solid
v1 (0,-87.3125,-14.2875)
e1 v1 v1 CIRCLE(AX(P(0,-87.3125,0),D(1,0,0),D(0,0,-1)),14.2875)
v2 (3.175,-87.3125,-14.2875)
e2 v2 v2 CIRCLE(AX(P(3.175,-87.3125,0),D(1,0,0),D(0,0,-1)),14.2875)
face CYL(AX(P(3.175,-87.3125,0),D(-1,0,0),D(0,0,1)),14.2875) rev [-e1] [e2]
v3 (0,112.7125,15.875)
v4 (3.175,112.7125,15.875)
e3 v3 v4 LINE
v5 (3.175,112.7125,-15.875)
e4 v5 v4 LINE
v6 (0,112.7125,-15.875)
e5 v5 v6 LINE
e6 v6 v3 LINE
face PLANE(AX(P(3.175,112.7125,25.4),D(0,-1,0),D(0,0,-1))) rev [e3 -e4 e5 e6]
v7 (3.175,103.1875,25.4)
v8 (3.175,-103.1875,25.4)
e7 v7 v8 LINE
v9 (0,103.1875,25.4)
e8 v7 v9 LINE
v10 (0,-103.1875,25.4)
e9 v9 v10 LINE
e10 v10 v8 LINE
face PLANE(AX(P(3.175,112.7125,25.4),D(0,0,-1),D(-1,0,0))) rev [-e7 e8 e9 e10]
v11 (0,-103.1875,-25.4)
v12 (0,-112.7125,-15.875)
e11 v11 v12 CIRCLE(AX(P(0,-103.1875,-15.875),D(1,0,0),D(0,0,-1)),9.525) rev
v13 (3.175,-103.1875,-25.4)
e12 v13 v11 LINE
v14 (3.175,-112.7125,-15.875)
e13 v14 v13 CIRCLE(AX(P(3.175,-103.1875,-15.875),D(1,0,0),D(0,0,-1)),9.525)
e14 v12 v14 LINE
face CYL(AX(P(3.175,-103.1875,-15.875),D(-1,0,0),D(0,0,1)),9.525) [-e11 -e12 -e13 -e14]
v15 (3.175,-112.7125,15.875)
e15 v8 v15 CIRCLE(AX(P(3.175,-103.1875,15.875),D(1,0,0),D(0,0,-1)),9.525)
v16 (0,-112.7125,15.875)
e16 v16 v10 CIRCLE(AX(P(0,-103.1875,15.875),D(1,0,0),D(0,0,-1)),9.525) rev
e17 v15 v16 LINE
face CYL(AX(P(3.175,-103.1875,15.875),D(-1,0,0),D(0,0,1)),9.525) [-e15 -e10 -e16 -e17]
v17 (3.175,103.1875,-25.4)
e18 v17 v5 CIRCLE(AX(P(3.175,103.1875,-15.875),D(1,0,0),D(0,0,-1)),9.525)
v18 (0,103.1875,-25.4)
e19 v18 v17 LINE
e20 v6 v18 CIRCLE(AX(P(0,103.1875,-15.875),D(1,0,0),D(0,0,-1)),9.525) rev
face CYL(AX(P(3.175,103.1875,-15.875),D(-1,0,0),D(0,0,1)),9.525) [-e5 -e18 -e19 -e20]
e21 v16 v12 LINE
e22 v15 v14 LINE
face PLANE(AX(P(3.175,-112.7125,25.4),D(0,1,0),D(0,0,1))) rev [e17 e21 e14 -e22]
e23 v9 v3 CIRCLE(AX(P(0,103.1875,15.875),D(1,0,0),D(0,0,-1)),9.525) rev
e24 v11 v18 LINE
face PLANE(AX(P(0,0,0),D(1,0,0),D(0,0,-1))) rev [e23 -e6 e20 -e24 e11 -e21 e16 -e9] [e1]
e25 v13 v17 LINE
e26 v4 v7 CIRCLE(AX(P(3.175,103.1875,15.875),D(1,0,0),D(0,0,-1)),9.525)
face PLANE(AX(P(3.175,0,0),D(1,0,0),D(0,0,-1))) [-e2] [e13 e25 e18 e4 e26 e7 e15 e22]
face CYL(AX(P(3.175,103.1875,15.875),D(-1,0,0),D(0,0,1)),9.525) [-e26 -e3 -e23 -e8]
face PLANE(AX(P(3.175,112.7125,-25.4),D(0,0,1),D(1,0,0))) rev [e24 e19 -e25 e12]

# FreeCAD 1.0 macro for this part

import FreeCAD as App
import Part
import Sketcher

V = App.Vector
Q = App.Units.Quantity


def edges_at(feature, points):
    """Names of the edges that pass closest to the given points."""
    edges = feature.Shape.Edges
    near = lambda p: min(range(len(edges)), key=lambda i: edges[i].distToShape(Part.Vertex(*p))[0])
    return sorted({f"Edge{near(p) + 1}" for p in points})

doc = App.newDocument("Part")
body = doc.addObject("PartDesign::Body", "Body")

sketch1 = body.newObject("Sketcher::SketchObject", "Sketch")
sketch1.AttachmentSupport = (doc.getObject("YZ_Plane"), [""])
sketch1.MapMode = "FlatFace"
sketch1.addGeometry(Part.LineSegment(V(113, 25, 0), V(-113, 25, 0)), False)
sketch1.addGeometry(Part.LineSegment(V(-113, 25, 0), V(-113, -25, 0)), False)
sketch1.addGeometry(Part.LineSegment(V(-113, -25, 0), V(113, -25, 0)), False)
sketch1.addGeometry(Part.LineSegment(V(113, -25, 0), V(113, 25, 0)), False)
sketch1.addGeometry(Part.Circle(V(-87, 0, 0), V(0, 0, 1), 14), False)
sketch1.addConstraint(Sketcher.Constraint("Coincident", 0, 2, 1, 1))
sketch1.addConstraint(Sketcher.Constraint("Coincident", 1, 2, 2, 1))
sketch1.addConstraint(Sketcher.Constraint("Coincident", 2, 2, 3, 1))
sketch1.addConstraint(Sketcher.Constraint("Coincident", 3, 2, 0, 1))
sketch1.addConstraint(Sketcher.Constraint("Horizontal", 0))
sketch1.addConstraint(Sketcher.Constraint("Vertical", 1))
sketch1.addConstraint(Sketcher.Constraint("Horizontal", 2))
sketch1.addConstraint(Sketcher.Constraint("Vertical", 3))
sketch1.addConstraint(Sketcher.Constraint("Symmetric", 0, 2, 2, 2, -1, 1))
sketch1.addConstraint(Sketcher.Constraint("PointOnObject", 4, 3, -1))
sketch1.addConstraint(Sketcher.Constraint("DistanceY", 1, 2, 1, 1, Q("2 in")))
sketch1.addConstraint(Sketcher.Constraint("Diameter", 4, Q("1.125 in")))
sketch1.addConstraint(Sketcher.Constraint("DistanceX", 0, 2, 4, 3, Q("1 in")))
sketch1.addConstraint(Sketcher.Constraint("DistanceX", 0, 2, 0, 1, Q("8.875 in")))
pad1 = body.newObject("PartDesign::Pad", "Pad")
pad1.Profile = sketch1
pad1.Length = Q("0.125 in")
doc.recompute()

fillet = body.newObject("PartDesign::Fillet", "Fillet")
fillet.Base = (pad1, edges_at(pad1, [
    (1.587, 112.713, 25.4),
    (1.587, 112.713, -25.4),
    (1.587, -112.713, -25.4),
    (1.587, -112.713, 25.4),
]))
fillet.Radius = Q("0.375 in")

doc.recompute()
